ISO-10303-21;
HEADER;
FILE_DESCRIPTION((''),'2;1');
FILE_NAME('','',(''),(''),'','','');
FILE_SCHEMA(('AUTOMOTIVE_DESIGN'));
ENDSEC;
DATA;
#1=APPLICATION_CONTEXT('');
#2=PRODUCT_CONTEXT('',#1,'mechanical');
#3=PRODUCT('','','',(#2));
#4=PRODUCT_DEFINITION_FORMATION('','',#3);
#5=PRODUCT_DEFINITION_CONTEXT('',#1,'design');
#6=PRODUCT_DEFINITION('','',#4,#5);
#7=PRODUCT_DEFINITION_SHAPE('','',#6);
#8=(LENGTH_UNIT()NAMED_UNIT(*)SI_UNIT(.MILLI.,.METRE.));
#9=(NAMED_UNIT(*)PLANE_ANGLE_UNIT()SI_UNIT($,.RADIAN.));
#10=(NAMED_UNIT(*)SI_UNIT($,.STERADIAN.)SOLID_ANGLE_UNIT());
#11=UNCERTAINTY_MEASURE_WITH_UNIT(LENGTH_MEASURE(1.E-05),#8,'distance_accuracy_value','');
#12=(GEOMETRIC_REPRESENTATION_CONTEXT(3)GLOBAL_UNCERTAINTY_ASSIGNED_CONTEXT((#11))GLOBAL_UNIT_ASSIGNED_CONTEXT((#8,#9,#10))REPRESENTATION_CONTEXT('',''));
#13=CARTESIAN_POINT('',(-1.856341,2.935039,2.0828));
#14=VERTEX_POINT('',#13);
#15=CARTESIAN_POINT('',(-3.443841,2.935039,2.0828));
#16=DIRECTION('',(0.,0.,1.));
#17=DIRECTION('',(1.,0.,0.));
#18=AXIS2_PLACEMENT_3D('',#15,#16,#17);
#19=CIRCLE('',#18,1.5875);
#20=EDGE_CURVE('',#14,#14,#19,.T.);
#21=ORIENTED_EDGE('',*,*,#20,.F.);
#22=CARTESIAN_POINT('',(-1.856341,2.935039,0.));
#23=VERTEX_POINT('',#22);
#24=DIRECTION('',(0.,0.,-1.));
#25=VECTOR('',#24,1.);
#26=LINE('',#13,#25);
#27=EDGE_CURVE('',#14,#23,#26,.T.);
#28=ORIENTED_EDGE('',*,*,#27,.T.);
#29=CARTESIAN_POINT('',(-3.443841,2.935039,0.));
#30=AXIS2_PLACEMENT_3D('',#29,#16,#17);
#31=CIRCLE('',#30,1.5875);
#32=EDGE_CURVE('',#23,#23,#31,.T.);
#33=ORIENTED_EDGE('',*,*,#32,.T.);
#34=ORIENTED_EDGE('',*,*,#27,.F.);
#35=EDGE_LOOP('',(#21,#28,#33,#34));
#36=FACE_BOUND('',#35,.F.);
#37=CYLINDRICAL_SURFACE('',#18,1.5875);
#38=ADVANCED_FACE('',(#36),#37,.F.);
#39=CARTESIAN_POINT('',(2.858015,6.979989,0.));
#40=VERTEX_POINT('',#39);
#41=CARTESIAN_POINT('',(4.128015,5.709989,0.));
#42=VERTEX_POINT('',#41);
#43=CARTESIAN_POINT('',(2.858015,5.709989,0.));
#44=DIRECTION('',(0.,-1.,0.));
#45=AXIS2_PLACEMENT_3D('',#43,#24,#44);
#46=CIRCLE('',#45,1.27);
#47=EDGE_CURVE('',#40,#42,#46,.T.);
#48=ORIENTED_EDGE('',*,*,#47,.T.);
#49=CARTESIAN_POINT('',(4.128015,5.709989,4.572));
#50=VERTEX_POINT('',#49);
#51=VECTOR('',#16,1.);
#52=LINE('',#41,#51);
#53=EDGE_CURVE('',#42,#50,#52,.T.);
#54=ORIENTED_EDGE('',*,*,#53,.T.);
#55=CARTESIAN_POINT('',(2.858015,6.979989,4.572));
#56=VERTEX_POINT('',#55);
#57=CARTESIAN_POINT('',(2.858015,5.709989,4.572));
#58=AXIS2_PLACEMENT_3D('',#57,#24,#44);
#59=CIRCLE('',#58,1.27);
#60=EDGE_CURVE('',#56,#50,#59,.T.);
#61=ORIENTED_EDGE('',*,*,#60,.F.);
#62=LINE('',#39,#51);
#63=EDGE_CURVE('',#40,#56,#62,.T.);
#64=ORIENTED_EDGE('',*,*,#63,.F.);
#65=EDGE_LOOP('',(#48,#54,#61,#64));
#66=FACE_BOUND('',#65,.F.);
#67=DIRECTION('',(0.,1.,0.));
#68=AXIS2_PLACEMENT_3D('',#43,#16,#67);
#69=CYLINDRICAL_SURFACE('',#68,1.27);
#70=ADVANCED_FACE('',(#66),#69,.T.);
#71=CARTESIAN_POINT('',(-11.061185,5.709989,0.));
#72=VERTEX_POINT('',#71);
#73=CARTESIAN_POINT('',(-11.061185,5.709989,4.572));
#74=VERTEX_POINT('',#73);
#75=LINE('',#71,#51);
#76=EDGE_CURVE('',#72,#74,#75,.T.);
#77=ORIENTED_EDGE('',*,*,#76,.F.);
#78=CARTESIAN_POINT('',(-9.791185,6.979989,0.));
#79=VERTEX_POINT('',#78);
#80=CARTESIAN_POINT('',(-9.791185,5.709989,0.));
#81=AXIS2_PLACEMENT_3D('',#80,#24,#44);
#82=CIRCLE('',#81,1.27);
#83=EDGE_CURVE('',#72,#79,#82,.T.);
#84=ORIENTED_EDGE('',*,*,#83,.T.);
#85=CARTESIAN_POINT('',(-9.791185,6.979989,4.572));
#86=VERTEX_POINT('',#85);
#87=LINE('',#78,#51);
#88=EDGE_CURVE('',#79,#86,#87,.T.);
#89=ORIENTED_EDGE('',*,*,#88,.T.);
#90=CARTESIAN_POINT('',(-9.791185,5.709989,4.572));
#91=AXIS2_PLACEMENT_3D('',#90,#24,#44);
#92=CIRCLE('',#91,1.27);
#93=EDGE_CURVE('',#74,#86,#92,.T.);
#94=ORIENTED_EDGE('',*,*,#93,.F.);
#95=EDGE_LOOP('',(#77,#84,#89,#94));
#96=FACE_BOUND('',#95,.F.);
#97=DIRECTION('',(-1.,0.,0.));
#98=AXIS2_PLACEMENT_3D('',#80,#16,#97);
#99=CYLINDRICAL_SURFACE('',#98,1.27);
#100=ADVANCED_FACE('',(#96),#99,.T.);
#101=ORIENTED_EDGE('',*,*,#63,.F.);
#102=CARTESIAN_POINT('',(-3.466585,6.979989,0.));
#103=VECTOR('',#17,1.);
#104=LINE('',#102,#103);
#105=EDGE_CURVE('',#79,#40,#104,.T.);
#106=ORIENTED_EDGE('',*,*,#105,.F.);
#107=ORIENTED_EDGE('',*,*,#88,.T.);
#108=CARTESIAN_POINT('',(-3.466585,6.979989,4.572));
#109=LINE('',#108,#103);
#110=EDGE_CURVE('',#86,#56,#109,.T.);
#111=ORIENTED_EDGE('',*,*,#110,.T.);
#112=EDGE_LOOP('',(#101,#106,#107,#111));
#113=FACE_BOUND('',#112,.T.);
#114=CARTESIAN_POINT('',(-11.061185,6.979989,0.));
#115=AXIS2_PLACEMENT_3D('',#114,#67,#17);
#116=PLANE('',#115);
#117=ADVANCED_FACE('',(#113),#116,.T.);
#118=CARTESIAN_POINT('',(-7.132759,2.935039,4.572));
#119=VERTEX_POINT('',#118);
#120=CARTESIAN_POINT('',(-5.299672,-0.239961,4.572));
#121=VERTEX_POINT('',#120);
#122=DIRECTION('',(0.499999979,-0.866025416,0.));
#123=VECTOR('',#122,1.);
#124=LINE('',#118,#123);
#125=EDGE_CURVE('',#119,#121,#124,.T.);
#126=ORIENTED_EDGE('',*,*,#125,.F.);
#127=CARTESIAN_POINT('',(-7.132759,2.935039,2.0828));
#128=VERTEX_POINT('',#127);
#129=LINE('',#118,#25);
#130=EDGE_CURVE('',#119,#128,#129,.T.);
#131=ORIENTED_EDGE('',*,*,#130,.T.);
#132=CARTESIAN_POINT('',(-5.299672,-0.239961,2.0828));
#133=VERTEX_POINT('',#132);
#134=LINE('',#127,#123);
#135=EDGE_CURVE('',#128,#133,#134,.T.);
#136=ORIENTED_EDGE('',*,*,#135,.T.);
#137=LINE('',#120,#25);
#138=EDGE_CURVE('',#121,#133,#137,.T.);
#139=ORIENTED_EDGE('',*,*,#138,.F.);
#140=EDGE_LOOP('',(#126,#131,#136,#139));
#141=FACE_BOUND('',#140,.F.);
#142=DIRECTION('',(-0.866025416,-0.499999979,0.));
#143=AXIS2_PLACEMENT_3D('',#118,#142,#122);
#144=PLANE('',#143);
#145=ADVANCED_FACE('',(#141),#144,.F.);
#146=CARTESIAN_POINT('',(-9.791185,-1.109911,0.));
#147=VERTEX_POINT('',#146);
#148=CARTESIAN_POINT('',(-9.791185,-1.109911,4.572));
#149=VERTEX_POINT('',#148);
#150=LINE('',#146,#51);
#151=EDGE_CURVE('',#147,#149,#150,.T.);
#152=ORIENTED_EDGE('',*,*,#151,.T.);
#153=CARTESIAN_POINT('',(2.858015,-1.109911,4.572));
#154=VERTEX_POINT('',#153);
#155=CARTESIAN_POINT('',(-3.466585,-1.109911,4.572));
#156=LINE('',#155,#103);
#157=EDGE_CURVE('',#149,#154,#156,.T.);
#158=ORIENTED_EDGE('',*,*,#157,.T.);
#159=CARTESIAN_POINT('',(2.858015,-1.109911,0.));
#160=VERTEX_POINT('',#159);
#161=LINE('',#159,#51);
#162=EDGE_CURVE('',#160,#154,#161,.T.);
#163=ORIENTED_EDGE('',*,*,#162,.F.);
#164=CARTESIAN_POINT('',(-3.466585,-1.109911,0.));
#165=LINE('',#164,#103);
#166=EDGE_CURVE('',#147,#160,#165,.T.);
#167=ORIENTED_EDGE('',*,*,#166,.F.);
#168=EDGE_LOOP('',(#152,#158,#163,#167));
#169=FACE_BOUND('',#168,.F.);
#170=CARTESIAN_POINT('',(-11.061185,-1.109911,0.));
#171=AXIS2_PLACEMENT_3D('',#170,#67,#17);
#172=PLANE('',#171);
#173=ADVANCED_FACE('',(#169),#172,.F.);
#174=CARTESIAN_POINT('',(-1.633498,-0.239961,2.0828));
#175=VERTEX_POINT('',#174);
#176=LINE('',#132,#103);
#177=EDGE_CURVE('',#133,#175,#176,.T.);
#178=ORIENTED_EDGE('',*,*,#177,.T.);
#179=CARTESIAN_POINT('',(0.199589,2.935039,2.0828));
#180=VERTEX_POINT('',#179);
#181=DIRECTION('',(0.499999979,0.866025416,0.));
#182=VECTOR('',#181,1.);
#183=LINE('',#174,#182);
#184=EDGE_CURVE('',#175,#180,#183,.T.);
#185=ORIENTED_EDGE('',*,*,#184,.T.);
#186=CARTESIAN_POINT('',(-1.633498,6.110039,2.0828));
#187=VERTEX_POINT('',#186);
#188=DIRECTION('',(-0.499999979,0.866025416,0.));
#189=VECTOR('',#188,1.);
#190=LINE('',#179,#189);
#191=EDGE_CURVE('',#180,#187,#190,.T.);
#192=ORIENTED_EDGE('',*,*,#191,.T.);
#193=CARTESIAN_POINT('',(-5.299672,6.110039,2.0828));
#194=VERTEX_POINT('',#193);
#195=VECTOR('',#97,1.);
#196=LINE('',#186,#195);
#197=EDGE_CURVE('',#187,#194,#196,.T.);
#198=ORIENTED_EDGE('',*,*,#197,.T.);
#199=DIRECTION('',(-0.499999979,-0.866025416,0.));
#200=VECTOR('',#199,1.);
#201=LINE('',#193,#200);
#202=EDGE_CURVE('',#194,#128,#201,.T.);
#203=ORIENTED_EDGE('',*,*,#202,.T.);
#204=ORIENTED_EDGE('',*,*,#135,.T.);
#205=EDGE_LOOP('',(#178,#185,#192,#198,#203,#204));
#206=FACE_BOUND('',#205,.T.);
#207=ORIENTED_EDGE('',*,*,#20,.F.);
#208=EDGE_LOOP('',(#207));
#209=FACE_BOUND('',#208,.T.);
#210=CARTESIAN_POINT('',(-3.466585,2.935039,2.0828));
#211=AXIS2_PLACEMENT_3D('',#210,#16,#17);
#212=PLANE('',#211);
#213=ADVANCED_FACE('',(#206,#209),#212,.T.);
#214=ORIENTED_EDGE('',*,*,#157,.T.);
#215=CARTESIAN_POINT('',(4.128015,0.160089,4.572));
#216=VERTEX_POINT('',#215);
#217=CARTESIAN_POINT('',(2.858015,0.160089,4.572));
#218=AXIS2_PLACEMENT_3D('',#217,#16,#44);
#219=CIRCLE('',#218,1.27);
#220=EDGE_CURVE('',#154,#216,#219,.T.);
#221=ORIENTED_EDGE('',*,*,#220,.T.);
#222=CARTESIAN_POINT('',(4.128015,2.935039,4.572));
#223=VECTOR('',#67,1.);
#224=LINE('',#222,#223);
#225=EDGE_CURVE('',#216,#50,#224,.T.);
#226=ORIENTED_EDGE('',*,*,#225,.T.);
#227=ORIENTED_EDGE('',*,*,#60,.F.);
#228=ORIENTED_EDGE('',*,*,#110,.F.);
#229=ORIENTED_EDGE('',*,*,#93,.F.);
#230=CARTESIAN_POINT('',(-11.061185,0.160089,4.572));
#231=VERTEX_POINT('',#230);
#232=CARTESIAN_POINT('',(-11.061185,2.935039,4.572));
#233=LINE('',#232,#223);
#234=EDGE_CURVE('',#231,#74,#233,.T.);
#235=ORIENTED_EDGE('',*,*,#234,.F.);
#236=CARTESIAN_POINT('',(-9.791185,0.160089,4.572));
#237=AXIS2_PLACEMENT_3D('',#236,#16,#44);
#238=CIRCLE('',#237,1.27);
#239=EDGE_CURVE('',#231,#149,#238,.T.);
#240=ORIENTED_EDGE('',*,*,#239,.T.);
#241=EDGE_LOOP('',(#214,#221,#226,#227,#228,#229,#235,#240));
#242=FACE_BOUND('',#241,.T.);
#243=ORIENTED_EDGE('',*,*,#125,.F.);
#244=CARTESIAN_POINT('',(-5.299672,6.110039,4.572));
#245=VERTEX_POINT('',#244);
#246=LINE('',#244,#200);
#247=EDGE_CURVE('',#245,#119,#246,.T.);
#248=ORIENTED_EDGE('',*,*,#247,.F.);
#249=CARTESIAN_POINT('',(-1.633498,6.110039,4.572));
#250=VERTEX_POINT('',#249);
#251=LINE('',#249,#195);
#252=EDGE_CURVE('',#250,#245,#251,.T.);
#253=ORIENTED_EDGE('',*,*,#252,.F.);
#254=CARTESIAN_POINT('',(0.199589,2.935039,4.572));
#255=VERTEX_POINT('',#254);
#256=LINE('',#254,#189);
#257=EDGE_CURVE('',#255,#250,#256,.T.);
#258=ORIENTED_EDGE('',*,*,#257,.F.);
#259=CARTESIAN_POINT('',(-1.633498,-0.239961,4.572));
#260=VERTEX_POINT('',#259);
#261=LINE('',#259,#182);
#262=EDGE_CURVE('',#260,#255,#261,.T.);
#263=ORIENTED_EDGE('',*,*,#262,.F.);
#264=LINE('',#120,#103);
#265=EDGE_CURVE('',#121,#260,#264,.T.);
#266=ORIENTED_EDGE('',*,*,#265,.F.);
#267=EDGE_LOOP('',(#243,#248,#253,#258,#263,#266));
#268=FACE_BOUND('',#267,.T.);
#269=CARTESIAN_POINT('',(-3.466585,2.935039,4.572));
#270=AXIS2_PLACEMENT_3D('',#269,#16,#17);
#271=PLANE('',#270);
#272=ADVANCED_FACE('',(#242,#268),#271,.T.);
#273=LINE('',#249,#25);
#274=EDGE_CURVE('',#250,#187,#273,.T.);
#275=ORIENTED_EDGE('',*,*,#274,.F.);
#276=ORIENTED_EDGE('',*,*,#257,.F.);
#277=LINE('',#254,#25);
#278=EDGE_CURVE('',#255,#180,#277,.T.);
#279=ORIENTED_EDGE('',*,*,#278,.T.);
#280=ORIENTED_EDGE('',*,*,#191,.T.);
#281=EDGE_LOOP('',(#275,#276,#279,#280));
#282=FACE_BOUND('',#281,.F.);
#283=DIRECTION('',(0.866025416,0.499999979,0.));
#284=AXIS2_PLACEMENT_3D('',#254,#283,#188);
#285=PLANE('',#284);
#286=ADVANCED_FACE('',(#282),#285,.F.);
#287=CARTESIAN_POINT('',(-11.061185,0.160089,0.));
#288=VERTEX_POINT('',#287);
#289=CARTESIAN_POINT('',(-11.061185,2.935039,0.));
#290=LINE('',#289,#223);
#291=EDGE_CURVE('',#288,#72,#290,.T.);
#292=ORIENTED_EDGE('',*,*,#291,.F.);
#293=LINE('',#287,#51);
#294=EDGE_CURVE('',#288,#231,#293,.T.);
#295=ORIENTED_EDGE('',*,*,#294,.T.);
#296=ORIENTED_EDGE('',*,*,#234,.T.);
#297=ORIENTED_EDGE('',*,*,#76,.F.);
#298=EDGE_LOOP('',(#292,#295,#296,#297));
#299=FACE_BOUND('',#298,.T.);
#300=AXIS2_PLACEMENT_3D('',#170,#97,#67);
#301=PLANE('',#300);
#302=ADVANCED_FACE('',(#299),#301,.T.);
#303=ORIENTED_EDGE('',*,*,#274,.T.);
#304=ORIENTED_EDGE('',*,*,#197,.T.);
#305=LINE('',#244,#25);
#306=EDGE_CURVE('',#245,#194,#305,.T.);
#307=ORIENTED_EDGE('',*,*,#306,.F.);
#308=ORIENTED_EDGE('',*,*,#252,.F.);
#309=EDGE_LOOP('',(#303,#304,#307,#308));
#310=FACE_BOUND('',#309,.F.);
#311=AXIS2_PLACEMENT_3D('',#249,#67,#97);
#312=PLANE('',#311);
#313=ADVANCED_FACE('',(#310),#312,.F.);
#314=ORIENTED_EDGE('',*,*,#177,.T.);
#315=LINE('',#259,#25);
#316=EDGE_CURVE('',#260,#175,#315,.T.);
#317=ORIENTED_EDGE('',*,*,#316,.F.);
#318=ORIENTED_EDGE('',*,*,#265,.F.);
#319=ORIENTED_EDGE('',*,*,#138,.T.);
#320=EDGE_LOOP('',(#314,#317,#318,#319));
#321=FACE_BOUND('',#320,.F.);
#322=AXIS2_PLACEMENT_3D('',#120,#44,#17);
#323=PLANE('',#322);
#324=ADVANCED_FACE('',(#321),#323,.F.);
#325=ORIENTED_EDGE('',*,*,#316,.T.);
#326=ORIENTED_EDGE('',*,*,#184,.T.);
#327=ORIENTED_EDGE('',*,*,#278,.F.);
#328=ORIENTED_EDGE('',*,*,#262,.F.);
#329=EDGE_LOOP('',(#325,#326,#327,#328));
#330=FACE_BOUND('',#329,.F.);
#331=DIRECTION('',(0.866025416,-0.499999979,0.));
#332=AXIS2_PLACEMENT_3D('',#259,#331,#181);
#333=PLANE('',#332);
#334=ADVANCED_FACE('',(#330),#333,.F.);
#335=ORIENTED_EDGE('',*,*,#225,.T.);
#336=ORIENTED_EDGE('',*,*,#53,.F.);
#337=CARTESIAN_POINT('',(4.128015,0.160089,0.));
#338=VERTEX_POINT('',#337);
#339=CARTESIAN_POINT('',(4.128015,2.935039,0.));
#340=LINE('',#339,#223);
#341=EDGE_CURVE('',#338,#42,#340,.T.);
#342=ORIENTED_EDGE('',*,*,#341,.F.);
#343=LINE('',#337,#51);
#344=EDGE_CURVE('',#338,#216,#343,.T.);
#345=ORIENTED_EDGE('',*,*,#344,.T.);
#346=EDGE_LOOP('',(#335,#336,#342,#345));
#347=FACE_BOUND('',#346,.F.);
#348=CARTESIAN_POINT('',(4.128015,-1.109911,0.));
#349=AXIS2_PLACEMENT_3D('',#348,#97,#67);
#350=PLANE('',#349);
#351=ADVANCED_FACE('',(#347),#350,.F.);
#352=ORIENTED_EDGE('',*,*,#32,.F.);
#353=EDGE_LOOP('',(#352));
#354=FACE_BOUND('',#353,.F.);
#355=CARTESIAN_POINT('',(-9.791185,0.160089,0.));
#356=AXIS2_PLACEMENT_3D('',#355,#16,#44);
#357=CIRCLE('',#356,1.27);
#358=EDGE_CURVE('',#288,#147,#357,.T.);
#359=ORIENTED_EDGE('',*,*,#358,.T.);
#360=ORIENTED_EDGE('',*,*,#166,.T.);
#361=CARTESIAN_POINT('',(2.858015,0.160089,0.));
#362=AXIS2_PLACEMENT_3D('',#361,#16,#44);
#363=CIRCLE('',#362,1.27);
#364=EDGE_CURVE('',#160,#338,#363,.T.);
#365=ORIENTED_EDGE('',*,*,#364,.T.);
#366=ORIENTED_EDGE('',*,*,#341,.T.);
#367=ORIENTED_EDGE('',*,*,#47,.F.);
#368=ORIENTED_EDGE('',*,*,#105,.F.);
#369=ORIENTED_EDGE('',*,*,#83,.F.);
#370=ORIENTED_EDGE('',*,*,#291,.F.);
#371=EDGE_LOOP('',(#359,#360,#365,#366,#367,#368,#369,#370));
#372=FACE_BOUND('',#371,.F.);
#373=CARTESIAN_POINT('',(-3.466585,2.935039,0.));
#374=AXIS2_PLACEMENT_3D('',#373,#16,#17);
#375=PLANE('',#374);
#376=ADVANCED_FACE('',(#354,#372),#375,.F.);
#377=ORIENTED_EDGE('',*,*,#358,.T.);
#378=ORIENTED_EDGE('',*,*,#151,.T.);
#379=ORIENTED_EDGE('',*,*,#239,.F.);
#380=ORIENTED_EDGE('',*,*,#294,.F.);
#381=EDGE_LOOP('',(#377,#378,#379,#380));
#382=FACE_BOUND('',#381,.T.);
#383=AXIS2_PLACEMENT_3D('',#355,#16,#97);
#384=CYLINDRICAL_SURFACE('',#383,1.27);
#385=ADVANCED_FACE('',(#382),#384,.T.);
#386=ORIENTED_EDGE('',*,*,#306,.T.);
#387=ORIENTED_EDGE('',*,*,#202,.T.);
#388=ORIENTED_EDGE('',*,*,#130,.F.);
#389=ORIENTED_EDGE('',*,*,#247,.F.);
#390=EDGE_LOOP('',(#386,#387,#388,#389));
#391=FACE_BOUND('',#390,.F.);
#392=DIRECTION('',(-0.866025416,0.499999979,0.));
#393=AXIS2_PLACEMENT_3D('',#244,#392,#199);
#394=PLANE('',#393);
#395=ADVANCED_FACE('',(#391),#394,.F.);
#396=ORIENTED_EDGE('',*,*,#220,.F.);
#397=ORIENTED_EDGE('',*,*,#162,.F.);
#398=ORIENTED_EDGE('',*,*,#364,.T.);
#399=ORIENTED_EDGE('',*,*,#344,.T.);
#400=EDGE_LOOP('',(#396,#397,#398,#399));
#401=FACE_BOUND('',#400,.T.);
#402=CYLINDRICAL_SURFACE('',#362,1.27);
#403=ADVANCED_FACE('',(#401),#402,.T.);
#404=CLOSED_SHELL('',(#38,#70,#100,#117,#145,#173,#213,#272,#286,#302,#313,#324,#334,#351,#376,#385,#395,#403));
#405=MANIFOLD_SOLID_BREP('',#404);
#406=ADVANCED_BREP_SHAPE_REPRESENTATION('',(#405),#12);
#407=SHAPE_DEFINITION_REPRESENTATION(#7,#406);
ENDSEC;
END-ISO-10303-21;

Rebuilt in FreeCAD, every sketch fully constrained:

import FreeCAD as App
import Part
import Sketcher
from FreeCAD import Vector
Q = App.Units.Quantity


def edges_at(feature, points):
    """Names of the edges that pass closest to the given points."""
    edges = feature.Shape.Edges
    near = lambda p: min(range(len(edges)), key=lambda i: edges[i].distToShape(Part.Vertex(*p))[0])
    return sorted({f"Edge{near(p) + 1}" for p in points})

doc = App.newDocument("Part")
body = doc.addObject("PartDesign::Body", "Body")

sketch1 = body.newObject("Sketcher::SketchObject", "Sketch")
sketch1.AttachmentSupport = (doc.getObject("XY_Plane"), [""])
sketch1.MapMode = "FlatFace"
sketch1.addGeometry(Part.LineSegment(Vector(-11.061185, 6.979989, 0), Vector(-11.061185, -1.109911, 0)), False)
sketch1.addGeometry(Part.LineSegment(Vector(-11.061185, -1.109911, 0), Vector(4.128015, -1.109911, 0)), False)
sketch1.addGeometry(Part.LineSegment(Vector(4.128015, -1.109911, 0), Vector(4.128015, 6.979989, 0)), False)
sketch1.addGeometry(Part.LineSegment(Vector(4.128015, 6.979989, 0), Vector(-11.061185, 6.979989, 0)), False)
sketch1.addConstraint(Sketcher.Constraint("Coincident", 0, 2, 1, 1))
sketch1.addConstraint(Sketcher.Constraint("Coincident", 1, 2, 2, 1))
sketch1.addConstraint(Sketcher.Constraint("Coincident", 2, 2, 3, 1))
sketch1.addConstraint(Sketcher.Constraint("Coincident", 3, 2, 0, 1))
sketch1.addConstraint(Sketcher.Constraint("Vertical", 0))
sketch1.addConstraint(Sketcher.Constraint("Horizontal", 1))
sketch1.addConstraint(Sketcher.Constraint("Vertical", 2))
sketch1.addConstraint(Sketcher.Constraint("Horizontal", 3))
sketch1.addConstraint(Sketcher.Constraint("DistanceX", 1, 1, 1, 2, Q("0.598 in")))
sketch1.addConstraint(Sketcher.Constraint("DistanceY", 0, 2, 0, 1, Q("0.3185 in")))
sketch1.addConstraint(Sketcher.Constraint("DistanceY", 0, 2, -1, 1, 1.109911))
sketch1.addConstraint(Sketcher.Constraint("DistanceX", 0, 2, -1, 1, 11.061185))
pad1 = body.newObject("PartDesign::Pad", "Pad")
pad1.Profile = sketch1
pad1.Length = Q("0.18 in")

sketch2 = body.newObject("Sketcher::SketchObject", "Sketch001")
sketch2.AttachmentSupport = (doc.getObject("XY_Plane"), [""])
sketch2.MapMode = "FlatFace"
sketch2.AttachmentOffset = App.Placement(Vector(0, 0, 0.18 * 25.4), App.Rotation())
sketch2.addGeometry(Part.LineSegment(Vector(-1.633498, -0.239961, 0), Vector(0.199589, 2.935039, 0)), False)
sketch2.addGeometry(Part.LineSegment(Vector(0.199589, 2.935039, 0), Vector(-1.633498, 6.110039, 0)), False)
sketch2.addGeometry(Part.LineSegment(Vector(-1.633498, 6.110039, 0), Vector(-5.299672, 6.110039, 0)), False)
sketch2.addGeometry(Part.LineSegment(Vector(-5.299672, 6.110039, 0), Vector(-7.132759, 2.935039, 0)), False)
sketch2.addGeometry(Part.LineSegment(Vector(-7.132759, 2.935039, 0), Vector(-5.299672, -0.239961, 0)), False)
sketch2.addGeometry(Part.LineSegment(Vector(-5.299672, -0.239961, 0), Vector(-1.633498, -0.239961, 0)), False)
sketch2.addConstraint(Sketcher.Constraint("Coincident", 0, 2, 1, 1))
sketch2.addConstraint(Sketcher.Constraint("Coincident", 1, 2, 2, 1))
sketch2.addConstraint(Sketcher.Constraint("Coincident", 2, 2, 3, 1))
sketch2.addConstraint(Sketcher.Constraint("Coincident", 3, 2, 4, 1))
sketch2.addConstraint(Sketcher.Constraint("Coincident", 4, 2, 5, 1))
sketch2.addConstraint(Sketcher.Constraint("Coincident", 5, 2, 0, 1))
sketch2.addConstraint(Sketcher.Constraint("Horizontal", 2))
sketch2.addConstraint(Sketcher.Constraint("Horizontal", 5))
sketch2.addConstraint(Sketcher.Constraint("Parallel", 0, 3))
sketch2.addConstraint(Sketcher.Constraint("Parallel", 1, 4))
sketch2.addConstraint(Sketcher.Constraint("Horizontal", 0, 2, 3, 2))
sketch2.addConstraint(Sketcher.Constraint("Vertical", 2, 2, 4, 2))
sketch2.addConstraint(Sketcher.Constraint("Vertical", 1, 2, 5, 2))
sketch2.addConstraint(Sketcher.Constraint("Angle", 0, Q("60.000001 deg")))
sketch2.addConstraint(Sketcher.Constraint("DistanceY", 4, 2, 2, 2, Q("0.25 in")))
sketch2.addConstraint(Sketcher.Constraint("DistanceX", 2, 2, 2, 1, 3.666174))
sketch2.addConstraint(Sketcher.Constraint("DistanceX", -1, 1, 0, 2, 0.199589))
sketch2.addConstraint(Sketcher.Constraint("DistanceY", -1, 1, 0, 2, 2.935039))
pocket1 = body.newObject("PartDesign::Pocket", "Pocket")
pocket1.Profile = sketch2
pocket1.Length = Q("0.098 in")

sketch3 = body.newObject("Sketcher::SketchObject", "Sketch002")
sketch3.AttachmentSupport = (doc.getObject("XY_Plane"), [""])
sketch3.MapMode = "FlatFace"
sketch3.AttachmentOffset = App.Placement(Vector(0, 0, 0.082 * 25.4), App.Rotation())
sketch3.addGeometry(Part.Circle(Vector(-3.443841, 2.935039, 0), Vector(0, 0, 1), 1.5875), False)
sketch3.addConstraint(Sketcher.Constraint("Diameter", 0, Q("0.125 in")))
sketch3.addConstraint(Sketcher.Constraint("DistanceX", 0, 3, -1, 1, 3.443841))
sketch3.addConstraint(Sketcher.Constraint("DistanceY", -1, 1, 0, 3, 2.935039))
pocket2 = body.newObject("PartDesign::Pocket", "Pocket001")
pocket2.Profile = sketch3
pocket2.Length = Q("1 in")
doc.recompute()

fillet = body.newObject("PartDesign::Fillet", "Fillet")
fillet.Base = (pocket2, edges_at(pocket2, [
    (4.128, -1.11, 2.286),
    (-11.061, -1.11, 2.286),
    (-11.061, 6.98, 2.286),
    (4.128, 6.98, 2.286),
]))
fillet.Radius = Q("0.05 in")

doc.recompute()
